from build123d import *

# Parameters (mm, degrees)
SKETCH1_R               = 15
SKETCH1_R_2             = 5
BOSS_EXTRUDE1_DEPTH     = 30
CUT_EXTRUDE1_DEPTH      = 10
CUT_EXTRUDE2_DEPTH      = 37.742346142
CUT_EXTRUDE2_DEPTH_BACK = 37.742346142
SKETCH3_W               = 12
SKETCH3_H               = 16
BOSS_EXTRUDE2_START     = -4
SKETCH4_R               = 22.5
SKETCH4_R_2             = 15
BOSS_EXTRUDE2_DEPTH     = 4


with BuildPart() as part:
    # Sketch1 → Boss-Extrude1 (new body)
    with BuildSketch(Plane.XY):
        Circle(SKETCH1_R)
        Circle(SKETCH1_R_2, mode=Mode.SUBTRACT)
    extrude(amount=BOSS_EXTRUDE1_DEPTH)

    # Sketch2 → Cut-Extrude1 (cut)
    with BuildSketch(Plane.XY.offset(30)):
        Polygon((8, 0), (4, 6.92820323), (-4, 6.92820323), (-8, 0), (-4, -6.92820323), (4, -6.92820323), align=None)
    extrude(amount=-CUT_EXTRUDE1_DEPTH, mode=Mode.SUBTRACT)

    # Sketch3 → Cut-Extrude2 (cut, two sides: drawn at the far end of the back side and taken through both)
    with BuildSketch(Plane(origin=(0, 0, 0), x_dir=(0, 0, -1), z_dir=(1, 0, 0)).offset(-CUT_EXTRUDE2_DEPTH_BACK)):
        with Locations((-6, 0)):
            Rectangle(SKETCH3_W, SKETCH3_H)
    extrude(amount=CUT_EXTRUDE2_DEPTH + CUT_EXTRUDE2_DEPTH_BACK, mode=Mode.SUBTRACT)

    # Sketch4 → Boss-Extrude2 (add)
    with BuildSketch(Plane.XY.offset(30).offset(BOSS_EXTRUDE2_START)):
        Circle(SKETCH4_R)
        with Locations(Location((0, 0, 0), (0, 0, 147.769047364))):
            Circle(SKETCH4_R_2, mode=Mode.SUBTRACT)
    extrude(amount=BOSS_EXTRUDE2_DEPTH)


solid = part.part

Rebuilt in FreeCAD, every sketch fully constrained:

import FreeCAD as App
import Part
import Sketcher
from FreeCAD import Vector
Q = App.Units.Quantity


def add_polygon(sketch, points):
    """Adds a closed chain of lines whose ends are joined by coincident constraints."""
    first, n = sketch.GeometryCount, len(points)
    for a, b in zip(points, points[1:] + points[:1]):
        sketch.addGeometry(Part.LineSegment(App.Vector(*a, 0), App.Vector(*b, 0)), False)
    for i in range(n):
        sketch.addConstraint(Sketcher.Constraint("Coincident", first + i, 2, first + (i + 1) % n, 1))

doc = App.newDocument("Part")
body = doc.addObject("PartDesign::Body", "Body")

# Sketch on XY plane
sketch1 = body.newObject("Sketcher::SketchObject", "Sketch")
sketch1.AttachmentSupport = (doc.getObject("XY_Plane"), [""])
sketch1.MapMode = "FlatFace"
sketch1.addGeometry([
    Part.Circle(Vector(0, 0, 0), Vector(0, 0, 1), 15),
    Part.Circle(Vector(0, 0, 0), Vector(0, 0, 1), 5),
], False)
sketch1.addConstraint([
    Sketcher.Constraint("Coincident", 0, 3, -1, 1),
    Sketcher.Constraint("Coincident", 1, 3, -1, 1),
    Sketcher.Constraint("Diameter", 0, 30.0),
    Sketcher.Constraint("Diameter", 1, 10.0),
])
pad1 = body.newObject("PartDesign::Pad", "Pad")
pad1.Profile = sketch1
pad1.Length = 30

# Sketch on XY plane
sketch2 = body.newObject("Sketcher::SketchObject", "Sketch001")
sketch2.AttachmentSupport = (doc.getObject("XY_Plane"), [""])
sketch2.MapMode = "FlatFace"
sketch2.AttachmentOffset = App.Placement(Vector(0, 0, 30), App.Rotation())
add_polygon(sketch2, [(8, 0), (4, 7), (-4, 7), (-8, 0), (-4, -7), (4, -7)])  # lines 0-5
sketch2.addConstraint([
    Sketcher.Constraint("Horizontal", 1),
    Sketcher.Constraint("Horizontal", 4),
    Sketcher.Constraint("Symmetric", 0, 2, 3, 2, -1, 1),
    Sketcher.Constraint("Symmetric", 2, 2, 5, 2, -1, 1),
    Sketcher.Constraint("PointOnObject", 2, 2, -1),
    Sketcher.Constraint("Parallel", 2, 5),
    Sketcher.Constraint("Vertical", 1, 2, 3, 2),
    Sketcher.Constraint("DistanceX", 1, 2, 1, 1, 8.0),
    Sketcher.Constraint("Angle", 0, Q("120 deg")),
    Sketcher.Constraint("Distance", 0, 8.0),
])
pocket1 = body.newObject("PartDesign::Pocket", "Pocket")
pocket1.Profile = sketch2
pocket1.Length = 10

# Sketch on YZ plane
sketch3 = body.newObject("Sketcher::SketchObject", "Sketch002")
sketch3.AttachmentSupport = (doc.getObject("YZ_Plane"), [""])
sketch3.MapMode = "FlatFace"
add_polygon(sketch3, [(8, 12), (-8, 12), (-8, 0), (8, 0)])  # lines 0-3
sketch3.addConstraint([
    Sketcher.Constraint("Horizontal", 0),
    Sketcher.Constraint("Vertical", 1),
    Sketcher.Constraint("Horizontal", 2),
    Sketcher.Constraint("Vertical", 3),
    Sketcher.Constraint("Symmetric", 1, 2, 2, 2, -1, 1),
    Sketcher.Constraint("DistanceX", 0, 2, 0, 1, 16.0),
    Sketcher.Constraint("DistanceY", 1, 2, 1, 1, 12.0),
])
pocket2 = body.newObject("PartDesign::Pocket", "Pocket001")
pocket2.Profile = sketch3
pocket2.Type = "ThroughAll"
pocket2.Midplane = True

# Sketch on XY plane
sketch4 = body.newObject("Sketcher::SketchObject", "Sketch003")
sketch4.AttachmentSupport = (doc.getObject("XY_Plane"), [""])
sketch4.MapMode = "FlatFace"
sketch4.AttachmentOffset = App.Placement(Vector(0, 0, 26), App.Rotation())
sketch4.addGeometry([
    Part.Circle(Vector(0, 0, 0), Vector(0, 0, 1), 22),
    Part.Circle(Vector(0, 0, 0), Vector(0, 0, 1), 15),
], False)
sketch4.addConstraint([
    Sketcher.Constraint("Coincident", 0, 3, -1, 1),
    Sketcher.Constraint("Coincident", 1, 3, -1, 1),
    Sketcher.Constraint("Diameter", 0, 45.0),
    Sketcher.Constraint("Diameter", 1, 30.0),
])
pad2 = body.newObject("PartDesign::Pad", "Pad001")
pad2.Profile = sketch4
pad2.Length = 4

doc.recompute()
